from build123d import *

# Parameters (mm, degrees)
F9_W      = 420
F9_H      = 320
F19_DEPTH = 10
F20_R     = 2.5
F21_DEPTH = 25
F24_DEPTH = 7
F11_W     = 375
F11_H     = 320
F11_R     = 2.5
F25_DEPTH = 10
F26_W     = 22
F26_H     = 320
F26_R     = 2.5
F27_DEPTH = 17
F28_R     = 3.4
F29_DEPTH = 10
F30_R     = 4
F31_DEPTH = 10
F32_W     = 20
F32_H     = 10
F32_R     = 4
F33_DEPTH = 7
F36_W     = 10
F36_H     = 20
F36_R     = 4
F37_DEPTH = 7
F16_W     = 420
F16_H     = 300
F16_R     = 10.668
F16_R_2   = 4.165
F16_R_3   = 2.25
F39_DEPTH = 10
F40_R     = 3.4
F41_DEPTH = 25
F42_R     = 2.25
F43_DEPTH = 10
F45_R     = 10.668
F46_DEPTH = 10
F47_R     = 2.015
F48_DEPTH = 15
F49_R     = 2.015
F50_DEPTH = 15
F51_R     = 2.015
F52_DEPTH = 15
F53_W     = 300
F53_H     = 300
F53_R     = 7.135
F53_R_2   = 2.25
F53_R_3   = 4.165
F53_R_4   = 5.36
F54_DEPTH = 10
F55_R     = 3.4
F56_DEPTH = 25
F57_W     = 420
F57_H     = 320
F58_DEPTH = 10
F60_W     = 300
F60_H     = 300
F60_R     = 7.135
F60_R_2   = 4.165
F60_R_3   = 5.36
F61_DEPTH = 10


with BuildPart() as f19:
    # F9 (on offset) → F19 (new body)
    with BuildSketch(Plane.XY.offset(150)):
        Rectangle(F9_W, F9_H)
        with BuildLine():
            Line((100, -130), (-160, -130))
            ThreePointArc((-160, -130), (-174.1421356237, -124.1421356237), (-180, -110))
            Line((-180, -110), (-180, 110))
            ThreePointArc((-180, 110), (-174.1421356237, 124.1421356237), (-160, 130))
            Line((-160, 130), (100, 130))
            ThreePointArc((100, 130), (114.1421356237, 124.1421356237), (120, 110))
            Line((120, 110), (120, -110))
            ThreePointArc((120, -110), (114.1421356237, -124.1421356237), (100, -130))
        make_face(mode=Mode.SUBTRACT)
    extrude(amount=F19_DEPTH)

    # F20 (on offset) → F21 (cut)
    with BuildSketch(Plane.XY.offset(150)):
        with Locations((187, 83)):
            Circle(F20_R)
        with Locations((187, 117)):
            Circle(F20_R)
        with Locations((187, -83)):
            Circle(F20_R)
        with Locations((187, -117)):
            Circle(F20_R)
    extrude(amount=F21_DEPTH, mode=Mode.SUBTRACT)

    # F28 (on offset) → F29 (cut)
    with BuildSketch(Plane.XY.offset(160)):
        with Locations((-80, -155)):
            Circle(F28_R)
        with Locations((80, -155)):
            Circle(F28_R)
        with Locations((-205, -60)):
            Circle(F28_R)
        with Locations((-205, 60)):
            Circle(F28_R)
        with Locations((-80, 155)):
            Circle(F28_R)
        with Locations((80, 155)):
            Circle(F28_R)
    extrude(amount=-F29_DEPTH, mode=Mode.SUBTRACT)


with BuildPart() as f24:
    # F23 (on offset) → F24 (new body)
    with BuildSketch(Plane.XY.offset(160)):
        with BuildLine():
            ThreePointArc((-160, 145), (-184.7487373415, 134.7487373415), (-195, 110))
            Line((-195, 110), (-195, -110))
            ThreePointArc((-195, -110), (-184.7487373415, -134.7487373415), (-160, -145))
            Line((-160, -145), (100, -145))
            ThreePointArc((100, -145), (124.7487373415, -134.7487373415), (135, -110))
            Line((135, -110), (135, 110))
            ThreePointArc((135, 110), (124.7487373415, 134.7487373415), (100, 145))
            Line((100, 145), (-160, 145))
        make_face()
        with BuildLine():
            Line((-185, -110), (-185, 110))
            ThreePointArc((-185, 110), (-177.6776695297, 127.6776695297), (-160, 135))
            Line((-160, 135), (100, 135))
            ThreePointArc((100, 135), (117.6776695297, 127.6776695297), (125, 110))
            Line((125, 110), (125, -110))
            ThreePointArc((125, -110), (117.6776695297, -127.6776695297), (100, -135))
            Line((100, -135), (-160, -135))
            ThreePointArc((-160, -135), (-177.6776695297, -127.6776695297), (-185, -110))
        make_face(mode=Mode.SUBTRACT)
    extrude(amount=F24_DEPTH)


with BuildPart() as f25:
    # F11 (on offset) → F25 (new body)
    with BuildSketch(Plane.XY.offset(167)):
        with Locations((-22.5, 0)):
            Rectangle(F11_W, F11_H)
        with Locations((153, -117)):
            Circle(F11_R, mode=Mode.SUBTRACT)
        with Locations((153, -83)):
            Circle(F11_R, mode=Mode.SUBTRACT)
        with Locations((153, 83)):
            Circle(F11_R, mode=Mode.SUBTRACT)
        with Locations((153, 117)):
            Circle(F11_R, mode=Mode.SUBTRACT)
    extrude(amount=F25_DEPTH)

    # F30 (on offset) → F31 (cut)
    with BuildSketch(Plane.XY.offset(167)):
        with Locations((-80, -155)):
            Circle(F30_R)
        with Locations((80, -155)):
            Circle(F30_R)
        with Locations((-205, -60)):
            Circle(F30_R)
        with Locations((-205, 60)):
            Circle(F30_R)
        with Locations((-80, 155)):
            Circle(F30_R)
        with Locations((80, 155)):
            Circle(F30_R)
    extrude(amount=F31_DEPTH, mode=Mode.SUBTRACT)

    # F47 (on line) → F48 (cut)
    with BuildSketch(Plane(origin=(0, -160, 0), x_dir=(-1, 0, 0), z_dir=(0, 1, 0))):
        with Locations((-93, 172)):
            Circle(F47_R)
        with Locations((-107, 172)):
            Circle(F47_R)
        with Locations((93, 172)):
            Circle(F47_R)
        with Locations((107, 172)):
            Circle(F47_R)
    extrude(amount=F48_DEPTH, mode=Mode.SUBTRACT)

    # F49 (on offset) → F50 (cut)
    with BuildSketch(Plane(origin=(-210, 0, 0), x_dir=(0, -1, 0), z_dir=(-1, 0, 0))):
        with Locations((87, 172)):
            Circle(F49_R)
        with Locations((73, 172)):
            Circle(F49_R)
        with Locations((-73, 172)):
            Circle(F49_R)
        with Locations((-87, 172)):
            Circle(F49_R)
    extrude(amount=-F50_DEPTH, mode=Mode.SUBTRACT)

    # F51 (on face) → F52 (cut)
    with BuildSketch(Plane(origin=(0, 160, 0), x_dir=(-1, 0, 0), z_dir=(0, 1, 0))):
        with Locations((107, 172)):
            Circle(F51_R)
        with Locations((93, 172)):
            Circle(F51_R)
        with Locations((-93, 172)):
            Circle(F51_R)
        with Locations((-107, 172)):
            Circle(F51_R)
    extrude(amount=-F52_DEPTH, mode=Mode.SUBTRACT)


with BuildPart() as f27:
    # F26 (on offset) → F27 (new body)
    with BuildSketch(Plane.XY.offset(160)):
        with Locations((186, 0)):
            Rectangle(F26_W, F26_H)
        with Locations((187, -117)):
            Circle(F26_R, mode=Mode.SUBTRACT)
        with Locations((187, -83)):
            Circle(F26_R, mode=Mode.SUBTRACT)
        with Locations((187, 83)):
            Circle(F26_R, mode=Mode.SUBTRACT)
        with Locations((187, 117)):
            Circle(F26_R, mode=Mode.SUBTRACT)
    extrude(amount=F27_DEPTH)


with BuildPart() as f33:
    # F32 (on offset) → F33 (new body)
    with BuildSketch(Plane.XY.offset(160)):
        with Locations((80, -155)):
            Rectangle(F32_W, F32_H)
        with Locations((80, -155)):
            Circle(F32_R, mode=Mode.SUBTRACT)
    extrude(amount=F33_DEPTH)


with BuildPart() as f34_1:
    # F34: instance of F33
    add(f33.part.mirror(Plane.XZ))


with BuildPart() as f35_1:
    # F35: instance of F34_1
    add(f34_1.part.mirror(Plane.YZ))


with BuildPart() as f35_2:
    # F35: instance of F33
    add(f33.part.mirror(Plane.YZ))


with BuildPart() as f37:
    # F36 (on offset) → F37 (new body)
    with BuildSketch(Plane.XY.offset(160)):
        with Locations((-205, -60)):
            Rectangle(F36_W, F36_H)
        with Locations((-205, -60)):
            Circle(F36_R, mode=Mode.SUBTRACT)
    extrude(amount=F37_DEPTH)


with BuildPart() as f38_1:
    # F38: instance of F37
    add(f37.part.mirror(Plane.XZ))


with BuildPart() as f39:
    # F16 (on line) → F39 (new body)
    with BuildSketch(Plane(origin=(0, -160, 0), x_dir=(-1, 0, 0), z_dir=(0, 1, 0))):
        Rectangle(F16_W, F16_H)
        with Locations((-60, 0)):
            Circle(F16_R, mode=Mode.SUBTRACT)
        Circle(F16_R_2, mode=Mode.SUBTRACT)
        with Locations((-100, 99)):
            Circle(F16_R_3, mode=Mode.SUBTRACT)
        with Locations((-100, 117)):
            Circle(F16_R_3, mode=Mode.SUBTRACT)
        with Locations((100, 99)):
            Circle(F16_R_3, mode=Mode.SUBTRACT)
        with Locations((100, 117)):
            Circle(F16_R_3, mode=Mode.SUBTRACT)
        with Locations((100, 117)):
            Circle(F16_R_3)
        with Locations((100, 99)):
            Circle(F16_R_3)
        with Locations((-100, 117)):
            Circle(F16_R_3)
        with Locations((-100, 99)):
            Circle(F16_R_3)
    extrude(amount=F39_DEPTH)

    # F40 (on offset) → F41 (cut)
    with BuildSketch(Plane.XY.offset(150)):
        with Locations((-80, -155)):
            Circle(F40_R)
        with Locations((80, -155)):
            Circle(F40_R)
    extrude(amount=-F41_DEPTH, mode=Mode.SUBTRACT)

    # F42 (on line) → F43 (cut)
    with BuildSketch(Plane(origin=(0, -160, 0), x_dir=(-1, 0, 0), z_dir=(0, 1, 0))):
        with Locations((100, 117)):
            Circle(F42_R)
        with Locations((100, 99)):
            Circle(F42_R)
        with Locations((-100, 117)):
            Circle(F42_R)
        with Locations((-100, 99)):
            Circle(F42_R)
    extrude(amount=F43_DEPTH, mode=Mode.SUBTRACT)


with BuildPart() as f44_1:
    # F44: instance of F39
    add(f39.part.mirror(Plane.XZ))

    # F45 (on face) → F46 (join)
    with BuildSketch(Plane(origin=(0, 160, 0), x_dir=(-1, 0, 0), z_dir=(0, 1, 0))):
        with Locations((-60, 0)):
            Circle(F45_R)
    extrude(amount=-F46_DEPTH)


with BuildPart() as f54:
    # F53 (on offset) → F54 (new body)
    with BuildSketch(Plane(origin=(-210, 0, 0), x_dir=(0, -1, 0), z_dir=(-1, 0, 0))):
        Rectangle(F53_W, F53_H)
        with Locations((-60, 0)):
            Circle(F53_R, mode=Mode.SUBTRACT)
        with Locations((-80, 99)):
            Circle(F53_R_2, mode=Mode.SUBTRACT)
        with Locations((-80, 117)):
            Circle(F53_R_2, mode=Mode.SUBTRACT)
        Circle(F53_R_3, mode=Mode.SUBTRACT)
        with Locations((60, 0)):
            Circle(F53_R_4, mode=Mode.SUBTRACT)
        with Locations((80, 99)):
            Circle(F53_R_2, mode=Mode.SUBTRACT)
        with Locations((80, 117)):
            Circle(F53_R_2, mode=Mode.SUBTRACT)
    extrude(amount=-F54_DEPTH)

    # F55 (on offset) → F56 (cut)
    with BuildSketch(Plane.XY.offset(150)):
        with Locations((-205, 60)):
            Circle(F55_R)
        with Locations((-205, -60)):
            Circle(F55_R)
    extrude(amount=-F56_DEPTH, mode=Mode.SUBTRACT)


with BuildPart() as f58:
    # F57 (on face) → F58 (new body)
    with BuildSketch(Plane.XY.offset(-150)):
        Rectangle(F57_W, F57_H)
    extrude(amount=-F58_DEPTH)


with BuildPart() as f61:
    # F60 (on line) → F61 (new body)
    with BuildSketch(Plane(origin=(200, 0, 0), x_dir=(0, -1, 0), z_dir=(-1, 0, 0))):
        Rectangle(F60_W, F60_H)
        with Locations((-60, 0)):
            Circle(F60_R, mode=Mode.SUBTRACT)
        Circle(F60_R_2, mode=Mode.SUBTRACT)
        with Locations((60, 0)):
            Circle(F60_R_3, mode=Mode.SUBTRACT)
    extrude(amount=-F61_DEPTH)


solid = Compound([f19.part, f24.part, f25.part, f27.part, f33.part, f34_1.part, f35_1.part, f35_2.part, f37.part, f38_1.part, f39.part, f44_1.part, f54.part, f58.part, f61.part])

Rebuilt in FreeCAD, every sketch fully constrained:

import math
import FreeCAD as App
import Part
import Sketcher

V = App.Vector


def add_polygon(sketch, points):
    """Adds a closed chain of lines whose ends are joined by coincident constraints."""
    first, n = sketch.GeometryCount, len(points)
    for a, b in zip(points, points[1:] + points[:1]):
        sketch.addGeometry(Part.LineSegment(App.Vector(*a, 0), App.Vector(*b, 0)), False)
    for i in range(n):
        sketch.addConstraint(Sketcher.Constraint("Coincident", first + i, 2, first + (i + 1) % n, 1))

doc = App.newDocument("Part")
body = doc.addObject("PartDesign::Body", "Body")

# Sketch on XY plane
sketch1 = body.newObject("Sketcher::SketchObject", "Sketch")
sketch1.AttachmentSupport = (doc.getObject("XY_Plane"), [""])
sketch1.MapMode = "FlatFace"
sketch1.AttachmentOffset = App.Placement(V(0, 0, 150), App.Rotation())
add_polygon(sketch1, [(-210, 160), (-210, -160), (210, -160), (210, 160)])  # lines 0-3
sketch1.addGeometry(Part.ArcOfCircle(Part.Circle(V(100, -110, 0), V(0, 0, 1), 20), math.radians(-90), math.radians(0)), False)  # 4
sketch1.addGeometry(Part.LineSegment(V(100, -130, 0), V(-160, -130, 0)), False)  # 5
sketch1.addGeometry(Part.ArcOfCircle(Part.Circle(V(-160, -110, 0), V(0, 0, 1), 20), math.radians(180), math.radians(270)), False)  # 6
sketch1.addGeometry(Part.LineSegment(V(-180, -110, 0), V(-180, 110, 0)), False)  # 7
sketch1.addGeometry(Part.ArcOfCircle(Part.Circle(V(-160, 110, 0), V(0, 0, 1), 20), math.radians(90), math.radians(180)), False)  # 8
sketch1.addGeometry(Part.LineSegment(V(-160, 130, 0), V(100, 130, 0)), False)  # 9
sketch1.addGeometry(Part.ArcOfCircle(Part.Circle(V(100, 110, 0), V(0, 0, 1), 20), math.radians(0), math.radians(90)), False)  # 10
sketch1.addGeometry(Part.LineSegment(V(120, 110, 0), V(120, -110, 0)), False)  # 11
sketch1.addConstraint(Sketcher.Constraint("Tangent", 4, 1, 5, 1))
sketch1.addConstraint(Sketcher.Constraint("Tangent", 5, 2, 6, 2))
sketch1.addConstraint(Sketcher.Constraint("Tangent", 6, 1, 7, 1))
sketch1.addConstraint(Sketcher.Constraint("Tangent", 7, 2, 8, 2))
sketch1.addConstraint(Sketcher.Constraint("Tangent", 8, 1, 9, 1))
sketch1.addConstraint(Sketcher.Constraint("Tangent", 9, 2, 10, 2))
sketch1.addConstraint(Sketcher.Constraint("Tangent", 10, 1, 11, 1))
sketch1.addConstraint(Sketcher.Constraint("Tangent", 11, 2, 4, 2))
sketch1.addConstraint(Sketcher.Constraint("Vertical", 0))
sketch1.addConstraint(Sketcher.Constraint("Horizontal", 1))
sketch1.addConstraint(Sketcher.Constraint("Vertical", 2))
sketch1.addConstraint(Sketcher.Constraint("Horizontal", 3))
sketch1.addConstraint(Sketcher.Constraint("Horizontal", 5))
sketch1.addConstraint(Sketcher.Constraint("Vertical", 7))
sketch1.addConstraint(Sketcher.Constraint("Horizontal", 9))
sketch1.addConstraint(Sketcher.Constraint("Vertical", 11))
sketch1.addConstraint(Sketcher.Constraint("Equal", 4, 6))
sketch1.addConstraint(Sketcher.Constraint("Equal", 6, 8))
sketch1.addConstraint(Sketcher.Constraint("Equal", 8, 10))
sketch1.addConstraint(Sketcher.Constraint("Symmetric", 0, 2, 2, 2, -1, 1))
sketch1.addConstraint(Sketcher.Constraint("Radius", 4, 20.0))
sketch1.addConstraint(Sketcher.Constraint("DistanceX", 1, 1, 1, 2, 420.0))
sketch1.addConstraint(Sketcher.Constraint("DistanceX", 5, 2, 5, 1, 260.0))
sketch1.addConstraint(Sketcher.Constraint("DistanceY", 0, 2, 0, 1, 320.0))
sketch1.addConstraint(Sketcher.Constraint("DistanceY", 7, 1, 7, 2, 220.0))
sketch1.addConstraint(Sketcher.Constraint("DistanceX", -1, 1, 4, 3, 100.0))
sketch1.addConstraint(Sketcher.Constraint("DistanceY", 4, 3, -1, 1, 110.0))
pad1 = body.newObject("PartDesign::Pad", "Pad")
pad1.Profile = sketch1
pad1.Length = 10

# Sketch on XY plane
sketch2 = body.newObject("Sketcher::SketchObject", "Sketch001")
sketch2.AttachmentSupport = (doc.getObject("XY_Plane"), [""])
sketch2.MapMode = "FlatFace"
sketch2.AttachmentOffset = App.Placement(V(0, 0, 150), App.Rotation())
sketch2.addGeometry(Part.Circle(V(187, 83, 0), V(0, 0, 1), 2.5), False)
sketch2.addGeometry(Part.Circle(V(187, 117, 0), V(0, 0, 1), 2.5), False)
sketch2.addGeometry(Part.Circle(V(187, -83, 0), V(0, 0, 1), 2.5), False)
sketch2.addGeometry(Part.Circle(V(187, -117, 0), V(0, 0, 1), 2.5), False)
sketch2.addConstraint(Sketcher.Constraint("Equal", 0, 1))
sketch2.addConstraint(Sketcher.Constraint("Equal", 1, 2))
sketch2.addConstraint(Sketcher.Constraint("Equal", 2, 3))
sketch2.addConstraint(Sketcher.Constraint("Symmetric", 0, 3, 2, 3, -1))
sketch2.addConstraint(Sketcher.Constraint("Symmetric", 1, 3, 3, 3, -1))
sketch2.addConstraint(Sketcher.Constraint("Vertical", 0, 3, 1, 3))
sketch2.addConstraint(Sketcher.Constraint("Diameter", 0, 5.0))
sketch2.addConstraint(Sketcher.Constraint("DistanceX", -1, 1, 0, 3, 187.0))
sketch2.addConstraint(Sketcher.Constraint("DistanceY", -1, 1, 0, 3, 83.0))
sketch2.addConstraint(Sketcher.Constraint("DistanceY", -1, 1, 1, 3, 117.0))
pocket1 = body.newObject("PartDesign::Pocket", "Pocket")
pocket1.Profile = sketch2
pocket1.Length = 25
pocket1.Reversed = True

# Sketch on XY plane
sketch3 = body.newObject("Sketcher::SketchObject", "Sketch002")
sketch3.AttachmentSupport = (doc.getObject("XY_Plane"), [""])
sketch3.MapMode = "FlatFace"
sketch3.AttachmentOffset = App.Placement(V(0, 0, 160), App.Rotation())
sketch3.addGeometry(Part.Circle(V(-80, -155, 0), V(0, 0, 1), 3.4), False)
sketch3.addGeometry(Part.Circle(V(80, -155, 0), V(0, 0, 1), 3.4), False)
sketch3.addGeometry(Part.Circle(V(-205, -60, 0), V(0, 0, 1), 3.4), False)
sketch3.addGeometry(Part.Circle(V(-205, 60, 0), V(0, 0, 1), 3.4), False)
sketch3.addGeometry(Part.Circle(V(-80, 155, 0), V(0, 0, 1), 3.4), False)
sketch3.addGeometry(Part.Circle(V(80, 155, 0), V(0, 0, 1), 3.4), False)
sketch3.addConstraint(Sketcher.Constraint("Equal", 0, 1))
sketch3.addConstraint(Sketcher.Constraint("Equal", 1, 2))
sketch3.addConstraint(Sketcher.Constraint("Equal", 2, 3))
sketch3.addConstraint(Sketcher.Constraint("Equal", 3, 4))
sketch3.addConstraint(Sketcher.Constraint("Equal", 4, 5))
sketch3.addConstraint(Sketcher.Constraint("Symmetric", 1, 3, 4, 3, -1, 1))
sketch3.addConstraint(Sketcher.Constraint("Symmetric", 0, 3, 5, 3, -1, 1))
sketch3.addConstraint(Sketcher.Constraint("Symmetric", 0, 3, 1, 3, -2))
sketch3.addConstraint(Sketcher.Constraint("Symmetric", 2, 3, 3, 3, -1))
sketch3.addConstraint(Sketcher.Constraint("Diameter", 0, 6.8))
sketch3.addConstraint(Sketcher.Constraint("DistanceX", 0, 3, -1, 1, 80.0))
sketch3.addConstraint(Sketcher.Constraint("DistanceY", 0, 3, -1, 1, 155.0))
sketch3.addConstraint(Sketcher.Constraint("DistanceX", 2, 3, -1, 1, 205.0))
sketch3.addConstraint(Sketcher.Constraint("DistanceY", 2, 3, -1, 1, 60.0))
pocket2 = body.newObject("PartDesign::Pocket", "Pocket001")
pocket2.Profile = sketch3
pocket2.Length = 10
body2 = doc.addObject("PartDesign::Body", "Body001")

# Sketch on XY plane
sketch4 = body2.newObject("Sketcher::SketchObject", "Sketch003")
sketch4.AttachmentSupport = (doc.getObject("XY_Plane001"), [""])
sketch4.MapMode = "FlatFace"
sketch4.AttachmentOffset = App.Placement(V(0, 0, 160), App.Rotation())
sketch4.addGeometry(Part.ArcOfCircle(Part.Circle(V(-160, 110, 0), V(0, 0, 1), 35), math.radians(90), math.radians(180)), False)
sketch4.addGeometry(Part.LineSegment(V(-195, 110, 0), V(-195, -110, 0)), False)
sketch4.addGeometry(Part.ArcOfCircle(Part.Circle(V(-160, -110, 0), V(0, 0, 1), 35), math.radians(180), math.radians(270)), False)
sketch4.addGeometry(Part.LineSegment(V(-160, -145, 0), V(100, -145, 0)), False)
sketch4.addGeometry(Part.ArcOfCircle(Part.Circle(V(100, -110, 0), V(0, 0, 1), 35), math.radians(-90), math.radians(0)), False)
sketch4.addGeometry(Part.LineSegment(V(135, -110, 0), V(135, 110, 0)), False)
sketch4.addGeometry(Part.ArcOfCircle(Part.Circle(V(100, 110, 0), V(0, 0, 1), 35), math.radians(0), math.radians(90)), False)
sketch4.addGeometry(Part.LineSegment(V(100, 145, 0), V(-160, 145, 0)), False)
sketch4.addGeometry(Part.ArcOfCircle(Part.Circle(V(-160, -110, 0), V(0, 0, 1), 25), math.radians(180), math.radians(270)), False)
sketch4.addGeometry(Part.LineSegment(V(-185, -110, 0), V(-185, 110, 0)), False)
sketch4.addGeometry(Part.ArcOfCircle(Part.Circle(V(-160, 110, 0), V(0, 0, 1), 25), math.radians(90), math.radians(180)), False)
sketch4.addGeometry(Part.LineSegment(V(-160, 135, 0), V(100, 135, 0)), False)
sketch4.addGeometry(Part.ArcOfCircle(Part.Circle(V(100, 110, 0), V(0, 0, 1), 25), math.radians(0), math.radians(90)), False)
sketch4.addGeometry(Part.LineSegment(V(125, 110, 0), V(125, -110, 0)), False)
sketch4.addGeometry(Part.ArcOfCircle(Part.Circle(V(100, -110, 0), V(0, 0, 1), 25), math.radians(-90), math.radians(0)), False)
sketch4.addGeometry(Part.LineSegment(V(100, -135, 0), V(-160, -135, 0)), False)
sketch4.addConstraint(Sketcher.Constraint("Tangent", 0, 2, 1, 1))
sketch4.addConstraint(Sketcher.Constraint("Tangent", 1, 2, 2, 1))
sketch4.addConstraint(Sketcher.Constraint("Tangent", 2, 2, 3, 1))
sketch4.addConstraint(Sketcher.Constraint("Tangent", 3, 2, 4, 1))
sketch4.addConstraint(Sketcher.Constraint("Tangent", 4, 2, 5, 1))
sketch4.addConstraint(Sketcher.Constraint("Tangent", 5, 2, 6, 1))
sketch4.addConstraint(Sketcher.Constraint("Tangent", 6, 2, 7, 1))
sketch4.addConstraint(Sketcher.Constraint("Tangent", 7, 2, 0, 1))
sketch4.addConstraint(Sketcher.Constraint("Tangent", 8, 1, 9, 1))
sketch4.addConstraint(Sketcher.Constraint("Tangent", 9, 2, 10, 2))
sketch4.addConstraint(Sketcher.Constraint("Tangent", 10, 1, 11, 1))
sketch4.addConstraint(Sketcher.Constraint("Tangent", 11, 2, 12, 2))
sketch4.addConstraint(Sketcher.Constraint("Tangent", 12, 1, 13, 1))
sketch4.addConstraint(Sketcher.Constraint("Tangent", 13, 2, 14, 2))
sketch4.addConstraint(Sketcher.Constraint("Tangent", 14, 1, 15, 1))
sketch4.addConstraint(Sketcher.Constraint("Tangent", 15, 2, 8, 2))
sketch4.addConstraint(Sketcher.Constraint("Vertical", 1))
sketch4.addConstraint(Sketcher.Constraint("Horizontal", 3))
sketch4.addConstraint(Sketcher.Constraint("Vertical", 5))
sketch4.addConstraint(Sketcher.Constraint("Horizontal", 7))
sketch4.addConstraint(Sketcher.Constraint("Vertical", 9))
sketch4.addConstraint(Sketcher.Constraint("Horizontal", 11))
sketch4.addConstraint(Sketcher.Constraint("Vertical", 13))
sketch4.addConstraint(Sketcher.Constraint("Horizontal", 15))
sketch4.addConstraint(Sketcher.Constraint("Coincident", 8, 3, 2, 3))
sketch4.addConstraint(Sketcher.Constraint("Coincident", 10, 3, 0, 3))
sketch4.addConstraint(Sketcher.Constraint("Coincident", 12, 3, 6, 3))
sketch4.addConstraint(Sketcher.Constraint("Equal", 0, 2))
sketch4.addConstraint(Sketcher.Constraint("Equal", 2, 4))
sketch4.addConstraint(Sketcher.Constraint("Equal", 4, 6))
sketch4.addConstraint(Sketcher.Constraint("Equal", 12, 14))
sketch4.addConstraint(Sketcher.Constraint("Radius", 0, 35.0))
sketch4.addConstraint(Sketcher.Constraint("Radius", 8, 25.0))
sketch4.addConstraint(Sketcher.Constraint("DistanceX", 3, 1, 3, 2, 260.0))
sketch4.addConstraint(Sketcher.Constraint("DistanceY", 1, 2, 1, 1, 220.0))
sketch4.addConstraint(Sketcher.Constraint("DistanceX", 0, 3, -1, 1, 160.0))
sketch4.addConstraint(Sketcher.Constraint("DistanceY", -1, 1, 0, 3, 110.0))
pad2 = body2.newObject("PartDesign::Pad", "Pad001")
pad2.Profile = sketch4
pad2.Length = 7
body3 = doc.addObject("PartDesign::Body", "Body002")

# Sketch on XY plane
sketch5 = body3.newObject("Sketcher::SketchObject", "Sketch004")
sketch5.AttachmentSupport = (doc.getObject("XY_Plane002"), [""])
sketch5.MapMode = "FlatFace"
sketch5.AttachmentOffset = App.Placement(V(0, 0, 167), App.Rotation())
add_polygon(sketch5, [(-210, 160), (-210, -160), (165, -160), (165, 160)])  # lines 0-3
sketch5.addGeometry(Part.Circle(V(153, -117, 0), V(0, 0, 1), 2.5), False)  # 4
sketch5.addGeometry(Part.Circle(V(153, -83, 0), V(0, 0, 1), 2.5), False)  # 5
sketch5.addGeometry(Part.Circle(V(153, 83, 0), V(0, 0, 1), 2.5), False)  # 6
sketch5.addGeometry(Part.Circle(V(153, 117, 0), V(0, 0, 1), 2.5), False)  # 7
sketch5.addConstraint(Sketcher.Constraint("Vertical", 0))
sketch5.addConstraint(Sketcher.Constraint("Horizontal", 1))
sketch5.addConstraint(Sketcher.Constraint("Vertical", 2))
sketch5.addConstraint(Sketcher.Constraint("Horizontal", 3))
sketch5.addConstraint(Sketcher.Constraint("Equal", 4, 5))
sketch5.addConstraint(Sketcher.Constraint("Equal", 5, 6))
sketch5.addConstraint(Sketcher.Constraint("Equal", 6, 7))
sketch5.addConstraint(Sketcher.Constraint("Symmetric", 5, 3, 6, 3, -1))
sketch5.addConstraint(Sketcher.Constraint("Symmetric", 4, 3, 7, 3, -1))
sketch5.addConstraint(Sketcher.Constraint("Vertical", 4, 3, 5, 3))
sketch5.addConstraint(Sketcher.Constraint("Diameter", 4, 5.0))
sketch5.addConstraint(Sketcher.Constraint("DistanceX", 1, 1, 1, 2, 375.0))
sketch5.addConstraint(Sketcher.Constraint("DistanceY", 0, 2, 0, 1, 320.0))
sketch5.addConstraint(Sketcher.Constraint("DistanceX", -1, 1, 4, 3, 153.0))
sketch5.addConstraint(Sketcher.Constraint("DistanceY", 4, 3, -1, 1, 117.0))
sketch5.addConstraint(Sketcher.Constraint("DistanceY", 5, 3, -1, 1, 83.0))
sketch5.addConstraint(Sketcher.Constraint("DistanceX", 0, 2, -1, 1, 210.0))
sketch5.addConstraint(Sketcher.Constraint("DistanceY", 0, 2, -1, 1, 160.0))
pad3 = body3.newObject("PartDesign::Pad", "Pad002")
pad3.Profile = sketch5
pad3.Length = 10

# Sketch on XY plane
sketch6 = body3.newObject("Sketcher::SketchObject", "Sketch005")
sketch6.AttachmentSupport = (doc.getObject("XY_Plane002"), [""])
sketch6.MapMode = "FlatFace"
sketch6.AttachmentOffset = App.Placement(V(0, 0, 167), App.Rotation())
sketch6.addGeometry(Part.Circle(V(-80, -155, 0), V(0, 0, 1), 4), False)
sketch6.addGeometry(Part.Circle(V(80, -155, 0), V(0, 0, 1), 4), False)
sketch6.addGeometry(Part.Circle(V(-205, -60, 0), V(0, 0, 1), 4), False)
sketch6.addGeometry(Part.Circle(V(-205, 60, 0), V(0, 0, 1), 4), False)
sketch6.addGeometry(Part.Circle(V(-80, 155, 0), V(0, 0, 1), 4), False)
sketch6.addGeometry(Part.Circle(V(80, 155, 0), V(0, 0, 1), 4), False)
sketch6.addConstraint(Sketcher.Constraint("Equal", 0, 1))
sketch6.addConstraint(Sketcher.Constraint("Equal", 1, 2))
sketch6.addConstraint(Sketcher.Constraint("Equal", 2, 3))
sketch6.addConstraint(Sketcher.Constraint("Equal", 3, 4))
sketch6.addConstraint(Sketcher.Constraint("Equal", 4, 5))
sketch6.addConstraint(Sketcher.Constraint("Symmetric", 1, 3, 4, 3, -1, 1))
sketch6.addConstraint(Sketcher.Constraint("Symmetric", 0, 3, 5, 3, -1, 1))
sketch6.addConstraint(Sketcher.Constraint("Symmetric", 0, 3, 1, 3, -2))
sketch6.addConstraint(Sketcher.Constraint("Symmetric", 2, 3, 3, 3, -1))
sketch6.addConstraint(Sketcher.Constraint("Diameter", 0, 8.0))
sketch6.addConstraint(Sketcher.Constraint("DistanceX", 0, 3, -1, 1, 80.0))
sketch6.addConstraint(Sketcher.Constraint("DistanceY", 0, 3, -1, 1, 155.0))
sketch6.addConstraint(Sketcher.Constraint("DistanceX", 2, 3, -1, 1, 205.0))
sketch6.addConstraint(Sketcher.Constraint("DistanceY", 2, 3, -1, 1, 60.0))
pocket3 = body3.newObject("PartDesign::Pocket", "Pocket002")
pocket3.Profile = sketch6
pocket3.Length = 10
pocket3.Reversed = True

# Sketch on XZ plane
sketch7 = body3.newObject("Sketcher::SketchObject", "Sketch006")
sketch7.AttachmentSupport = (doc.getObject("XZ_Plane002"), [""])
sketch7.MapMode = "FlatFace"
sketch7.AttachmentOffset = App.Placement(V(0, 0, 160), App.Rotation())
sketch7.addGeometry(Part.Circle(V(93, 172, 0), V(0, 0, 1), 2.015), False)
sketch7.addGeometry(Part.Circle(V(107, 172, 0), V(0, 0, 1), 2.015), False)
sketch7.addGeometry(Part.Circle(V(-93, 172, 0), V(0, 0, 1), 2.015), False)
sketch7.addGeometry(Part.Circle(V(-107, 172, 0), V(0, 0, 1), 2.015), False)
sketch7.addConstraint(Sketcher.Constraint("Equal", 0, 1))
sketch7.addConstraint(Sketcher.Constraint("Equal", 1, 2))
sketch7.addConstraint(Sketcher.Constraint("Equal", 2, 3))
sketch7.addConstraint(Sketcher.Constraint("Symmetric", 0, 3, 2, 3, -2))
sketch7.addConstraint(Sketcher.Constraint("Symmetric", 1, 3, 3, 3, -2))
sketch7.addConstraint(Sketcher.Constraint("Horizontal", 0, 3, 1, 3))
sketch7.addConstraint(Sketcher.Constraint("Diameter", 0, 4.03))
sketch7.addConstraint(Sketcher.Constraint("DistanceX", -1, 1, 0, 3, 93.0))
sketch7.addConstraint(Sketcher.Constraint("DistanceY", -1, 1, 0, 3, 172.0))
sketch7.addConstraint(Sketcher.Constraint("DistanceX", -1, 1, 1, 3, 107.0))
pocket4 = body3.newObject("PartDesign::Pocket", "Pocket003")
pocket4.Profile = sketch7
pocket4.Length = 15

# Sketch on YZ plane
sketch8 = body3.newObject("Sketcher::SketchObject", "Sketch007")
sketch8.AttachmentSupport = (doc.getObject("YZ_Plane002"), [""])
sketch8.MapMode = "FlatFace"
sketch8.AttachmentOffset = App.Placement(V(0, 0, -210), App.Rotation())
sketch8.addGeometry(Part.Circle(V(-87, 172, 0), V(0, 0, 1), 2.015), False)
sketch8.addGeometry(Part.Circle(V(-73, 172, 0), V(0, 0, 1), 2.015), False)
sketch8.addGeometry(Part.Circle(V(73, 172, 0), V(0, 0, 1), 2.015), False)
sketch8.addGeometry(Part.Circle(V(87, 172, 0), V(0, 0, 1), 2.015), False)
sketch8.addConstraint(Sketcher.Constraint("Equal", 0, 1))
sketch8.addConstraint(Sketcher.Constraint("Equal", 1, 2))
sketch8.addConstraint(Sketcher.Constraint("Equal", 2, 3))
sketch8.addConstraint(Sketcher.Constraint("Symmetric", 1, 3, 2, 3, -2))
sketch8.addConstraint(Sketcher.Constraint("Symmetric", 0, 3, 3, 3, -2))
sketch8.addConstraint(Sketcher.Constraint("Horizontal", 0, 3, 1, 3))
sketch8.addConstraint(Sketcher.Constraint("Diameter", 0, 4.03))
sketch8.addConstraint(Sketcher.Constraint("DistanceX", 0, 3, -1, 1, 87.0))
sketch8.addConstraint(Sketcher.Constraint("DistanceY", -1, 1, 0, 3, 172.0))
sketch8.addConstraint(Sketcher.Constraint("DistanceX", 1, 3, -1, 1, 73.0))
pocket5 = body3.newObject("PartDesign::Pocket", "Pocket004")
pocket5.Profile = sketch8
pocket5.Length = 15
pocket5.Reversed = True

# Sketch on XZ plane
sketch9 = body3.newObject("Sketcher::SketchObject", "Sketch008")
sketch9.AttachmentSupport = (doc.getObject("XZ_Plane002"), [""])
sketch9.MapMode = "FlatFace"
sketch9.AttachmentOffset = App.Placement(V(0, 0, -160), App.Rotation())
sketch9.addGeometry(Part.Circle(V(-107, 172, 0), V(0, 0, 1), 2.015), False)
sketch9.addGeometry(Part.Circle(V(-93, 172, 0), V(0, 0, 1), 2.015), False)
sketch9.addGeometry(Part.Circle(V(93, 172, 0), V(0, 0, 1), 2.015), False)
sketch9.addGeometry(Part.Circle(V(107, 172, 0), V(0, 0, 1), 2.015), False)
sketch9.addConstraint(Sketcher.Constraint("Equal", 0, 1))
sketch9.addConstraint(Sketcher.Constraint("Equal", 1, 2))
sketch9.addConstraint(Sketcher.Constraint("Equal", 2, 3))
sketch9.addConstraint(Sketcher.Constraint("Symmetric", 1, 3, 2, 3, -2))
sketch9.addConstraint(Sketcher.Constraint("Symmetric", 0, 3, 3, 3, -2))
sketch9.addConstraint(Sketcher.Constraint("Horizontal", 0, 3, 1, 3))
sketch9.addConstraint(Sketcher.Constraint("Diameter", 0, 4.03))
sketch9.addConstraint(Sketcher.Constraint("DistanceX", 0, 3, -1, 1, 107.0))
sketch9.addConstraint(Sketcher.Constraint("DistanceY", -1, 1, 0, 3, 172.0))
sketch9.addConstraint(Sketcher.Constraint("DistanceX", 1, 3, -1, 1, 93.0))
pocket6 = body3.newObject("PartDesign::Pocket", "Pocket005")
pocket6.Profile = sketch9
pocket6.Length = 15
pocket6.Reversed = True
body4 = doc.addObject("PartDesign::Body", "Body003")

# Sketch on XY plane
sketch10 = body4.newObject("Sketcher::SketchObject", "Sketch009")
sketch10.AttachmentSupport = (doc.getObject("XY_Plane003"), [""])
sketch10.MapMode = "FlatFace"
sketch10.AttachmentOffset = App.Placement(V(0, 0, 160), App.Rotation())
add_polygon(sketch10, [(175, 160), (175, -160), (197, -160), (197, 160)])  # lines 0-3
sketch10.addGeometry(Part.Circle(V(187, -117, 0), V(0, 0, 1), 2.5), False)  # 4
sketch10.addGeometry(Part.Circle(V(187, -83, 0), V(0, 0, 1), 2.5), False)  # 5
sketch10.addGeometry(Part.Circle(V(187, 83, 0), V(0, 0, 1), 2.5), False)  # 6
sketch10.addGeometry(Part.Circle(V(187, 117, 0), V(0, 0, 1), 2.5), False)  # 7
sketch10.addConstraint(Sketcher.Constraint("Vertical", 0))
sketch10.addConstraint(Sketcher.Constraint("Horizontal", 1))
sketch10.addConstraint(Sketcher.Constraint("Vertical", 2))
sketch10.addConstraint(Sketcher.Constraint("Horizontal", 3))
sketch10.addConstraint(Sketcher.Constraint("Equal", 4, 5))
sketch10.addConstraint(Sketcher.Constraint("Equal", 5, 6))
sketch10.addConstraint(Sketcher.Constraint("Equal", 6, 7))
sketch10.addConstraint(Sketcher.Constraint("Symmetric", 5, 3, 6, 3, -1))
sketch10.addConstraint(Sketcher.Constraint("Symmetric", 4, 3, 7, 3, -1))
sketch10.addConstraint(Sketcher.Constraint("Vertical", 4, 3, 5, 3))
sketch10.addConstraint(Sketcher.Constraint("Diameter", 4, 5.0))
sketch10.addConstraint(Sketcher.Constraint("DistanceX", 1, 1, 1, 2, 22.0))
sketch10.addConstraint(Sketcher.Constraint("DistanceY", 0, 2, 0, 1, 320.0))
sketch10.addConstraint(Sketcher.Constraint("DistanceX", -1, 1, 4, 3, 187.0))
sketch10.addConstraint(Sketcher.Constraint("DistanceY", 4, 3, -1, 1, 117.0))
sketch10.addConstraint(Sketcher.Constraint("DistanceY", 5, 3, -1, 1, 83.0))
sketch10.addConstraint(Sketcher.Constraint("DistanceX", -1, 1, 0, 2, 175.0))
sketch10.addConstraint(Sketcher.Constraint("DistanceY", 0, 2, -1, 1, 160.0))
pad4 = body4.newObject("PartDesign::Pad", "Pad003")
pad4.Profile = sketch10
pad4.Length = 17
body5 = doc.addObject("PartDesign::Body", "Body004")

# Sketch on XY plane
sketch11 = body5.newObject("Sketcher::SketchObject", "Sketch010")
sketch11.AttachmentSupport = (doc.getObject("XY_Plane004"), [""])
sketch11.MapMode = "FlatFace"
sketch11.AttachmentOffset = App.Placement(V(0, 0, 160), App.Rotation())
add_polygon(sketch11, [(70, -150), (70, -160), (90, -160), (90, -150)])  # lines 0-3
sketch11.addGeometry(Part.Circle(V(80, -155, 0), V(0, 0, 1), 4), False)  # 4
sketch11.addConstraint(Sketcher.Constraint("Vertical", 0))
sketch11.addConstraint(Sketcher.Constraint("Horizontal", 1))
sketch11.addConstraint(Sketcher.Constraint("Vertical", 2))
sketch11.addConstraint(Sketcher.Constraint("Horizontal", 3))
sketch11.addConstraint(Sketcher.Constraint("Diameter", 4, 8.0))
sketch11.addConstraint(Sketcher.Constraint("DistanceX", 1, 1, 1, 2, 20.0))
sketch11.addConstraint(Sketcher.Constraint("DistanceY", 0, 2, 0, 1, 10.0))
sketch11.addConstraint(Sketcher.Constraint("DistanceX", -1, 1, 4, 3, 80.0))
sketch11.addConstraint(Sketcher.Constraint("DistanceY", 4, 3, -1, 1, 155.0))
sketch11.addConstraint(Sketcher.Constraint("DistanceX", -1, 1, 0, 2, 70.0))
sketch11.addConstraint(Sketcher.Constraint("DistanceY", 0, 2, -1, 1, 160.0))
pad5 = body5.newObject("PartDesign::Pad", "Pad004")
pad5.Profile = sketch11
pad5.Length = 7
body6 = doc.addObject("PartDesign::Body", "Body005")
doc.recompute()

mirroring = doc.addObject("Part::Mirroring", "Mirroring")
mirroring.Source = body5
mirroring.Base = V(0, 0, 0)
mirroring.Normal = V(0, -1, 0)
body6.BaseFeature = mirroring
doc.recompute()
body7 = doc.addObject("PartDesign::Body", "Body006")
doc.recompute()

mirroring2 = doc.addObject("Part::Mirroring", "Mirroring001")
mirroring2.Source = body6
mirroring2.Base = V(0, 0, 0)
mirroring2.Normal = V(1, 0, 0)
body7.BaseFeature = mirroring2
doc.recompute()
body8 = doc.addObject("PartDesign::Body", "Body007")
doc.recompute()

mirroring3 = doc.addObject("Part::Mirroring", "Mirroring002")
mirroring3.Source = body5
mirroring3.Base = V(0, 0, 0)
mirroring3.Normal = V(1, 0, 0)
body8.BaseFeature = mirroring3
doc.recompute()
body9 = doc.addObject("PartDesign::Body", "Body008")

# Sketch on XY plane
sketch12 = body9.newObject("Sketcher::SketchObject", "Sketch011")
sketch12.AttachmentSupport = (doc.getObject("XY_Plane008"), [""])
sketch12.MapMode = "FlatFace"
sketch12.AttachmentOffset = App.Placement(V(0, 0, 160), App.Rotation())
add_polygon(sketch12, [(-210, -50), (-210, -70), (-200, -70), (-200, -50)])  # lines 0-3
sketch12.addGeometry(Part.Circle(V(-205, -60, 0), V(0, 0, 1), 4), False)  # 4
sketch12.addConstraint(Sketcher.Constraint("Vertical", 0))
sketch12.addConstraint(Sketcher.Constraint("Horizontal", 1))
sketch12.addConstraint(Sketcher.Constraint("Vertical", 2))
sketch12.addConstraint(Sketcher.Constraint("Horizontal", 3))
sketch12.addConstraint(Sketcher.Constraint("Diameter", 4, 8.0))
sketch12.addConstraint(Sketcher.Constraint("DistanceX", 1, 1, 1, 2, 10.0))
sketch12.addConstraint(Sketcher.Constraint("DistanceY", 0, 2, 0, 1, 20.0))
sketch12.addConstraint(Sketcher.Constraint("DistanceX", 4, 3, -1, 1, 205.0))
sketch12.addConstraint(Sketcher.Constraint("DistanceY", 4, 3, -1, 1, 60.0))
sketch12.addConstraint(Sketcher.Constraint("DistanceX", 0, 2, -1, 1, 210.0))
sketch12.addConstraint(Sketcher.Constraint("DistanceY", 0, 2, -1, 1, 70.0))
pad6 = body9.newObject("PartDesign::Pad", "Pad005")
pad6.Profile = sketch12
pad6.Length = 7
body10 = doc.addObject("PartDesign::Body", "Body009")
doc.recompute()

mirroring4 = doc.addObject("Part::Mirroring", "Mirroring003")
mirroring4.Source = body9
mirroring4.Base = V(0, 0, 0)
mirroring4.Normal = V(0, -1, 0)
body10.BaseFeature = mirroring4
doc.recompute()
body11 = doc.addObject("PartDesign::Body", "Body010")

# Sketch on XZ plane
sketch13 = body11.newObject("Sketcher::SketchObject", "Sketch012")
sketch13.AttachmentSupport = (doc.getObject("XZ_Plane010"), [""])
sketch13.MapMode = "FlatFace"
sketch13.AttachmentOffset = App.Placement(V(0, 0, 160), App.Rotation())
add_polygon(sketch13, [(210, 150), (210, -150), (-210, -150), (-210, 150)])  # lines 0-3
sketch13.addGeometry(Part.Circle(V(60, 0, 0), V(0, 0, 1), 10.668), False)  # 4
sketch13.addGeometry(Part.Circle(V(0, 0, 0), V(0, 0, 1), 4.165), False)  # 5
sketch13.addConstraint(Sketcher.Constraint("Vertical", 0))
sketch13.addConstraint(Sketcher.Constraint("Horizontal", 1))
sketch13.addConstraint(Sketcher.Constraint("Vertical", 2))
sketch13.addConstraint(Sketcher.Constraint("Horizontal", 3))
sketch13.addConstraint(Sketcher.Constraint("Coincident", 5, 3, -1, 1))
sketch13.addConstraint(Sketcher.Constraint("Symmetric", 0, 2, 2, 2, -1, 1))
sketch13.addConstraint(Sketcher.Constraint("PointOnObject", 4, 3, -1))
sketch13.addConstraint(Sketcher.Constraint("Diameter", 5, 8.33))
sketch13.addConstraint(Sketcher.Constraint("DistanceX", 1, 2, 1, 1, 420.0))
sketch13.addConstraint(Sketcher.Constraint("DistanceY", 0, 2, 0, 1, 300.0))
sketch13.addConstraint(Sketcher.Constraint("Diameter", 4, 21.336))
sketch13.addConstraint(Sketcher.Constraint("DistanceX", -1, 1, 4, 3, 60.0))
pad7 = body11.newObject("PartDesign::Pad", "Pad006")
pad7.Profile = sketch13
pad7.Length = 10
pad7.Reversed = True

# Sketch on XY plane
sketch14 = body11.newObject("Sketcher::SketchObject", "Sketch013")
sketch14.AttachmentSupport = (doc.getObject("XY_Plane010"), [""])
sketch14.MapMode = "FlatFace"
sketch14.AttachmentOffset = App.Placement(V(0, 0, 150), App.Rotation())
sketch14.addGeometry(Part.Circle(V(-80, -155, 0), V(0, 0, 1), 3.4), False)
sketch14.addGeometry(Part.Circle(V(80, -155, 0), V(0, 0, 1), 3.4), False)
sketch14.addConstraint(Sketcher.Constraint("Equal", 0, 1))
sketch14.addConstraint(Sketcher.Constraint("Symmetric", 0, 3, 1, 3, -2))
sketch14.addConstraint(Sketcher.Constraint("Diameter", 0, 6.8))
sketch14.addConstraint(Sketcher.Constraint("DistanceX", 0, 3, -1, 1, 80.0))
sketch14.addConstraint(Sketcher.Constraint("DistanceY", 0, 3, -1, 1, 155.0))
pocket7 = body11.newObject("PartDesign::Pocket", "Pocket006")
pocket7.Profile = sketch14
pocket7.Length = 25

# Sketch on XZ plane
sketch15 = body11.newObject("Sketcher::SketchObject", "Sketch014")
sketch15.AttachmentSupport = (doc.getObject("XZ_Plane010"), [""])
sketch15.MapMode = "FlatFace"
sketch15.AttachmentOffset = App.Placement(V(0, 0, 160), App.Rotation())
sketch15.addGeometry(Part.Circle(V(-100, 117, 0), V(0, 0, 1), 2.25), False)
sketch15.addGeometry(Part.Circle(V(-100, 99, 0), V(0, 0, 1), 2.25), False)
sketch15.addGeometry(Part.Circle(V(100, 117, 0), V(0, 0, 1), 2.25), False)
sketch15.addGeometry(Part.Circle(V(100, 99, 0), V(0, 0, 1), 2.25), False)
sketch15.addConstraint(Sketcher.Constraint("Equal", 0, 1))
sketch15.addConstraint(Sketcher.Constraint("Equal", 1, 2))
sketch15.addConstraint(Sketcher.Constraint("Equal", 2, 3))
sketch15.addConstraint(Sketcher.Constraint("Symmetric", 0, 3, 2, 3, -2))
sketch15.addConstraint(Sketcher.Constraint("Symmetric", 1, 3, 3, 3, -2))
sketch15.addConstraint(Sketcher.Constraint("Vertical", 0, 3, 1, 3))
sketch15.addConstraint(Sketcher.Constraint("Diameter", 0, 4.5))
sketch15.addConstraint(Sketcher.Constraint("DistanceX", 0, 3, -1, 1, 100.0))
sketch15.addConstraint(Sketcher.Constraint("DistanceY", -1, 1, 0, 3, 117.0))
sketch15.addConstraint(Sketcher.Constraint("DistanceY", -1, 1, 1, 3, 99.0))
pocket8 = body11.newObject("PartDesign::Pocket", "Pocket007")
pocket8.Profile = sketch15
pocket8.Length = 10
body12 = doc.addObject("PartDesign::Body", "Body011")
doc.recompute()

mirroring5 = doc.addObject("Part::Mirroring", "Mirroring004")
mirroring5.Source = body11
mirroring5.Base = V(0, 0, 0)
mirroring5.Normal = V(0, -1, 0)
body12.BaseFeature = mirroring5
doc.recompute()

# Sketch on XZ plane
sketch16 = body12.newObject("Sketcher::SketchObject", "Sketch015")
sketch16.AttachmentSupport = (doc.getObject("XZ_Plane011"), [""])
sketch16.MapMode = "FlatFace"
sketch16.AttachmentOffset = App.Placement(V(0, 0, -160), App.Rotation())
sketch16.addGeometry(Part.Circle(V(60, 0, 0), V(0, 0, 1), 10.668), False)
sketch16.addConstraint(Sketcher.Constraint("PointOnObject", 0, 3, -1))
sketch16.addConstraint(Sketcher.Constraint("Diameter", 0, 21.336))
sketch16.addConstraint(Sketcher.Constraint("DistanceX", -1, 1, 0, 3, 60.0))
pad8 = body12.newObject("PartDesign::Pad", "Pad007")
pad8.Profile = sketch16
pad8.Length = 10
body13 = doc.addObject("PartDesign::Body", "Body012")

# Sketch on YZ plane
sketch17 = body13.newObject("Sketcher::SketchObject", "Sketch016")
sketch17.AttachmentSupport = (doc.getObject("YZ_Plane012"), [""])
sketch17.MapMode = "FlatFace"
sketch17.AttachmentOffset = App.Placement(V(0, 0, -210), App.Rotation())
add_polygon(sketch17, [(150, 150), (150, -150), (-150, -150), (-150, 150)])  # lines 0-3
sketch17.addGeometry(Part.Circle(V(60, 0, 0), V(0, 0, 1), 7.135), False)  # 4
sketch17.addGeometry(Part.Circle(V(0, 0, 0), V(0, 0, 1), 4.165), False)  # 5
sketch17.addGeometry(Part.Circle(V(-60, 0, 0), V(0, 0, 1), 5.36), False)  # 6
sketch17.addGeometry(Part.Circle(V(80, 99, 0), V(0, 0, 1), 2.25), False)  # 7
sketch17.addGeometry(Part.Circle(V(80, 117, 0), V(0, 0, 1), 2.25), False)  # 8
sketch17.addGeometry(Part.Circle(V(-80, 99, 0), V(0, 0, 1), 2.25), False)  # 9
sketch17.addGeometry(Part.Circle(V(-80, 117, 0), V(0, 0, 1), 2.25), False)  # 10
sketch17.addConstraint(Sketcher.Constraint("Vertical", 0))
sketch17.addConstraint(Sketcher.Constraint("Horizontal", 1))
sketch17.addConstraint(Sketcher.Constraint("Vertical", 2))
sketch17.addConstraint(Sketcher.Constraint("Horizontal", 3))
sketch17.addConstraint(Sketcher.Constraint("Coincident", 5, 3, -1, 1))
sketch17.addConstraint(Sketcher.Constraint("Equal", 7, 8))
sketch17.addConstraint(Sketcher.Constraint("Equal", 8, 9))
sketch17.addConstraint(Sketcher.Constraint("Equal", 9, 10))
sketch17.addConstraint(Sketcher.Constraint("Symmetric", 4, 3, 6, 3, -1, 1))
sketch17.addConstraint(Sketcher.Constraint("Symmetric", 0, 2, 2, 2, -1, 1))
sketch17.addConstraint(Sketcher.Constraint("Symmetric", 7, 3, 9, 3, -2))
sketch17.addConstraint(Sketcher.Constraint("Symmetric", 8, 3, 10, 3, -2))
sketch17.addConstraint(Sketcher.Constraint("PointOnObject", 4, 3, -1))
sketch17.addConstraint(Sketcher.Constraint("Vertical", 7, 3, 8, 3))
sketch17.addConstraint(Sketcher.Constraint("Equal", 3, 0))
sketch17.addConstraint(Sketcher.Constraint("Diameter", 7, 4.5))
sketch17.addConstraint(Sketcher.Constraint("Diameter", 4, 14.27))
sketch17.addConstraint(Sketcher.Constraint("Diameter", 5, 8.33))
sketch17.addConstraint(Sketcher.Constraint("Diameter", 6, 10.72))
sketch17.addConstraint(Sketcher.Constraint("DistanceX", 1, 2, 1, 1, 300.0))
sketch17.addConstraint(Sketcher.Constraint("DistanceX", -1, 1, 4, 3, 60.0))
sketch17.addConstraint(Sketcher.Constraint("DistanceX", -1, 1, 7, 3, 80.0))
sketch17.addConstraint(Sketcher.Constraint("DistanceY", -1, 1, 7, 3, 99.0))
sketch17.addConstraint(Sketcher.Constraint("DistanceY", -1, 1, 8, 3, 117.0))
pad9 = body13.newObject("PartDesign::Pad", "Pad008")
pad9.Profile = sketch17
pad9.Length = 10

# Sketch on XY plane
sketch18 = body13.newObject("Sketcher::SketchObject", "Sketch017")
sketch18.AttachmentSupport = (doc.getObject("XY_Plane012"), [""])
sketch18.MapMode = "FlatFace"
sketch18.AttachmentOffset = App.Placement(V(0, 0, 150), App.Rotation())
sketch18.addGeometry(Part.Circle(V(-205, 60, 0), V(0, 0, 1), 3.4), False)
sketch18.addGeometry(Part.Circle(V(-205, -60, 0), V(0, 0, 1), 3.4), False)
sketch18.addConstraint(Sketcher.Constraint("Equal", 0, 1))
sketch18.addConstraint(Sketcher.Constraint("Symmetric", 0, 3, 1, 3, -1))
sketch18.addConstraint(Sketcher.Constraint("Diameter", 0, 6.8))
sketch18.addConstraint(Sketcher.Constraint("DistanceX", 0, 3, -1, 1, 205.0))
sketch18.addConstraint(Sketcher.Constraint("DistanceY", -1, 1, 0, 3, 60.0))
pocket9 = body13.newObject("PartDesign::Pocket", "Pocket008")
pocket9.Profile = sketch18
pocket9.Length = 25
body14 = doc.addObject("PartDesign::Body", "Body013")

# Sketch on XY plane
sketch19 = body14.newObject("Sketcher::SketchObject", "Sketch018")
sketch19.AttachmentSupport = (doc.getObject("XY_Plane013"), [""])
sketch19.MapMode = "FlatFace"
sketch19.AttachmentOffset = App.Placement(V(0, 0, -150), App.Rotation())
add_polygon(sketch19, [(-210, 160), (-210, -160), (210, -160), (210, 160)])  # lines 0-3
sketch19.addConstraint(Sketcher.Constraint("Vertical", 0))
sketch19.addConstraint(Sketcher.Constraint("Horizontal", 1))
sketch19.addConstraint(Sketcher.Constraint("Vertical", 2))
sketch19.addConstraint(Sketcher.Constraint("Horizontal", 3))
sketch19.addConstraint(Sketcher.Constraint("Symmetric", 0, 2, 2, 2, -1, 1))
sketch19.addConstraint(Sketcher.Constraint("DistanceX", 1, 1, 1, 2, 420.0))
sketch19.addConstraint(Sketcher.Constraint("DistanceY", 0, 2, 0, 1, 320.0))
pad10 = body14.newObject("PartDesign::Pad", "Pad009")
pad10.Profile = sketch19
pad10.Length = 10
pad10.Reversed = True
body15 = doc.addObject("PartDesign::Body", "Body014")

# Sketch on YZ plane
sketch20 = body15.newObject("Sketcher::SketchObject", "Sketch019")
sketch20.AttachmentSupport = (doc.getObject("YZ_Plane014"), [""])
sketch20.MapMode = "FlatFace"
sketch20.AttachmentOffset = App.Placement(V(0, 0, 200), App.Rotation())
add_polygon(sketch20, [(150, 150), (150, -150), (-150, -150), (-150, 150)])  # lines 0-3
sketch20.addGeometry(Part.Circle(V(60, 0, 0), V(0, 0, 1), 7.135), False)  # 4
sketch20.addGeometry(Part.Circle(V(0, 0, 0), V(0, 0, 1), 4.165), False)  # 5
sketch20.addGeometry(Part.Circle(V(-60, 0, 0), V(0, 0, 1), 5.36), False)  # 6
sketch20.addConstraint(Sketcher.Constraint("Vertical", 0))
sketch20.addConstraint(Sketcher.Constraint("Horizontal", 1))
sketch20.addConstraint(Sketcher.Constraint("Vertical", 2))
sketch20.addConstraint(Sketcher.Constraint("Horizontal", 3))
sketch20.addConstraint(Sketcher.Constraint("Coincident", 5, 3, -1, 1))
sketch20.addConstraint(Sketcher.Constraint("Symmetric", 4, 3, 6, 3, -1, 1))
sketch20.addConstraint(Sketcher.Constraint("Symmetric", 0, 2, 2, 2, -1, 1))
sketch20.addConstraint(Sketcher.Constraint("PointOnObject", 4, 3, -1))
sketch20.addConstraint(Sketcher.Constraint("Equal", 3, 0))
sketch20.addConstraint(Sketcher.Constraint("Diameter", 4, 14.27))
sketch20.addConstraint(Sketcher.Constraint("Diameter", 5, 8.33))
sketch20.addConstraint(Sketcher.Constraint("Diameter", 6, 10.72))
sketch20.addConstraint(Sketcher.Constraint("DistanceX", 1, 2, 1, 1, 300.0))
sketch20.addConstraint(Sketcher.Constraint("DistanceX", -1, 1, 4, 3, 60.0))
pad11 = body15.newObject("PartDesign::Pad", "Pad010")
pad11.Profile = sketch20
pad11.Length = 10
mirroring.Visibility = False
mirroring2.Visibility = False
mirroring3.Visibility = False
mirroring4.Visibility = False
mirroring5.Visibility = False

doc.recompute()
